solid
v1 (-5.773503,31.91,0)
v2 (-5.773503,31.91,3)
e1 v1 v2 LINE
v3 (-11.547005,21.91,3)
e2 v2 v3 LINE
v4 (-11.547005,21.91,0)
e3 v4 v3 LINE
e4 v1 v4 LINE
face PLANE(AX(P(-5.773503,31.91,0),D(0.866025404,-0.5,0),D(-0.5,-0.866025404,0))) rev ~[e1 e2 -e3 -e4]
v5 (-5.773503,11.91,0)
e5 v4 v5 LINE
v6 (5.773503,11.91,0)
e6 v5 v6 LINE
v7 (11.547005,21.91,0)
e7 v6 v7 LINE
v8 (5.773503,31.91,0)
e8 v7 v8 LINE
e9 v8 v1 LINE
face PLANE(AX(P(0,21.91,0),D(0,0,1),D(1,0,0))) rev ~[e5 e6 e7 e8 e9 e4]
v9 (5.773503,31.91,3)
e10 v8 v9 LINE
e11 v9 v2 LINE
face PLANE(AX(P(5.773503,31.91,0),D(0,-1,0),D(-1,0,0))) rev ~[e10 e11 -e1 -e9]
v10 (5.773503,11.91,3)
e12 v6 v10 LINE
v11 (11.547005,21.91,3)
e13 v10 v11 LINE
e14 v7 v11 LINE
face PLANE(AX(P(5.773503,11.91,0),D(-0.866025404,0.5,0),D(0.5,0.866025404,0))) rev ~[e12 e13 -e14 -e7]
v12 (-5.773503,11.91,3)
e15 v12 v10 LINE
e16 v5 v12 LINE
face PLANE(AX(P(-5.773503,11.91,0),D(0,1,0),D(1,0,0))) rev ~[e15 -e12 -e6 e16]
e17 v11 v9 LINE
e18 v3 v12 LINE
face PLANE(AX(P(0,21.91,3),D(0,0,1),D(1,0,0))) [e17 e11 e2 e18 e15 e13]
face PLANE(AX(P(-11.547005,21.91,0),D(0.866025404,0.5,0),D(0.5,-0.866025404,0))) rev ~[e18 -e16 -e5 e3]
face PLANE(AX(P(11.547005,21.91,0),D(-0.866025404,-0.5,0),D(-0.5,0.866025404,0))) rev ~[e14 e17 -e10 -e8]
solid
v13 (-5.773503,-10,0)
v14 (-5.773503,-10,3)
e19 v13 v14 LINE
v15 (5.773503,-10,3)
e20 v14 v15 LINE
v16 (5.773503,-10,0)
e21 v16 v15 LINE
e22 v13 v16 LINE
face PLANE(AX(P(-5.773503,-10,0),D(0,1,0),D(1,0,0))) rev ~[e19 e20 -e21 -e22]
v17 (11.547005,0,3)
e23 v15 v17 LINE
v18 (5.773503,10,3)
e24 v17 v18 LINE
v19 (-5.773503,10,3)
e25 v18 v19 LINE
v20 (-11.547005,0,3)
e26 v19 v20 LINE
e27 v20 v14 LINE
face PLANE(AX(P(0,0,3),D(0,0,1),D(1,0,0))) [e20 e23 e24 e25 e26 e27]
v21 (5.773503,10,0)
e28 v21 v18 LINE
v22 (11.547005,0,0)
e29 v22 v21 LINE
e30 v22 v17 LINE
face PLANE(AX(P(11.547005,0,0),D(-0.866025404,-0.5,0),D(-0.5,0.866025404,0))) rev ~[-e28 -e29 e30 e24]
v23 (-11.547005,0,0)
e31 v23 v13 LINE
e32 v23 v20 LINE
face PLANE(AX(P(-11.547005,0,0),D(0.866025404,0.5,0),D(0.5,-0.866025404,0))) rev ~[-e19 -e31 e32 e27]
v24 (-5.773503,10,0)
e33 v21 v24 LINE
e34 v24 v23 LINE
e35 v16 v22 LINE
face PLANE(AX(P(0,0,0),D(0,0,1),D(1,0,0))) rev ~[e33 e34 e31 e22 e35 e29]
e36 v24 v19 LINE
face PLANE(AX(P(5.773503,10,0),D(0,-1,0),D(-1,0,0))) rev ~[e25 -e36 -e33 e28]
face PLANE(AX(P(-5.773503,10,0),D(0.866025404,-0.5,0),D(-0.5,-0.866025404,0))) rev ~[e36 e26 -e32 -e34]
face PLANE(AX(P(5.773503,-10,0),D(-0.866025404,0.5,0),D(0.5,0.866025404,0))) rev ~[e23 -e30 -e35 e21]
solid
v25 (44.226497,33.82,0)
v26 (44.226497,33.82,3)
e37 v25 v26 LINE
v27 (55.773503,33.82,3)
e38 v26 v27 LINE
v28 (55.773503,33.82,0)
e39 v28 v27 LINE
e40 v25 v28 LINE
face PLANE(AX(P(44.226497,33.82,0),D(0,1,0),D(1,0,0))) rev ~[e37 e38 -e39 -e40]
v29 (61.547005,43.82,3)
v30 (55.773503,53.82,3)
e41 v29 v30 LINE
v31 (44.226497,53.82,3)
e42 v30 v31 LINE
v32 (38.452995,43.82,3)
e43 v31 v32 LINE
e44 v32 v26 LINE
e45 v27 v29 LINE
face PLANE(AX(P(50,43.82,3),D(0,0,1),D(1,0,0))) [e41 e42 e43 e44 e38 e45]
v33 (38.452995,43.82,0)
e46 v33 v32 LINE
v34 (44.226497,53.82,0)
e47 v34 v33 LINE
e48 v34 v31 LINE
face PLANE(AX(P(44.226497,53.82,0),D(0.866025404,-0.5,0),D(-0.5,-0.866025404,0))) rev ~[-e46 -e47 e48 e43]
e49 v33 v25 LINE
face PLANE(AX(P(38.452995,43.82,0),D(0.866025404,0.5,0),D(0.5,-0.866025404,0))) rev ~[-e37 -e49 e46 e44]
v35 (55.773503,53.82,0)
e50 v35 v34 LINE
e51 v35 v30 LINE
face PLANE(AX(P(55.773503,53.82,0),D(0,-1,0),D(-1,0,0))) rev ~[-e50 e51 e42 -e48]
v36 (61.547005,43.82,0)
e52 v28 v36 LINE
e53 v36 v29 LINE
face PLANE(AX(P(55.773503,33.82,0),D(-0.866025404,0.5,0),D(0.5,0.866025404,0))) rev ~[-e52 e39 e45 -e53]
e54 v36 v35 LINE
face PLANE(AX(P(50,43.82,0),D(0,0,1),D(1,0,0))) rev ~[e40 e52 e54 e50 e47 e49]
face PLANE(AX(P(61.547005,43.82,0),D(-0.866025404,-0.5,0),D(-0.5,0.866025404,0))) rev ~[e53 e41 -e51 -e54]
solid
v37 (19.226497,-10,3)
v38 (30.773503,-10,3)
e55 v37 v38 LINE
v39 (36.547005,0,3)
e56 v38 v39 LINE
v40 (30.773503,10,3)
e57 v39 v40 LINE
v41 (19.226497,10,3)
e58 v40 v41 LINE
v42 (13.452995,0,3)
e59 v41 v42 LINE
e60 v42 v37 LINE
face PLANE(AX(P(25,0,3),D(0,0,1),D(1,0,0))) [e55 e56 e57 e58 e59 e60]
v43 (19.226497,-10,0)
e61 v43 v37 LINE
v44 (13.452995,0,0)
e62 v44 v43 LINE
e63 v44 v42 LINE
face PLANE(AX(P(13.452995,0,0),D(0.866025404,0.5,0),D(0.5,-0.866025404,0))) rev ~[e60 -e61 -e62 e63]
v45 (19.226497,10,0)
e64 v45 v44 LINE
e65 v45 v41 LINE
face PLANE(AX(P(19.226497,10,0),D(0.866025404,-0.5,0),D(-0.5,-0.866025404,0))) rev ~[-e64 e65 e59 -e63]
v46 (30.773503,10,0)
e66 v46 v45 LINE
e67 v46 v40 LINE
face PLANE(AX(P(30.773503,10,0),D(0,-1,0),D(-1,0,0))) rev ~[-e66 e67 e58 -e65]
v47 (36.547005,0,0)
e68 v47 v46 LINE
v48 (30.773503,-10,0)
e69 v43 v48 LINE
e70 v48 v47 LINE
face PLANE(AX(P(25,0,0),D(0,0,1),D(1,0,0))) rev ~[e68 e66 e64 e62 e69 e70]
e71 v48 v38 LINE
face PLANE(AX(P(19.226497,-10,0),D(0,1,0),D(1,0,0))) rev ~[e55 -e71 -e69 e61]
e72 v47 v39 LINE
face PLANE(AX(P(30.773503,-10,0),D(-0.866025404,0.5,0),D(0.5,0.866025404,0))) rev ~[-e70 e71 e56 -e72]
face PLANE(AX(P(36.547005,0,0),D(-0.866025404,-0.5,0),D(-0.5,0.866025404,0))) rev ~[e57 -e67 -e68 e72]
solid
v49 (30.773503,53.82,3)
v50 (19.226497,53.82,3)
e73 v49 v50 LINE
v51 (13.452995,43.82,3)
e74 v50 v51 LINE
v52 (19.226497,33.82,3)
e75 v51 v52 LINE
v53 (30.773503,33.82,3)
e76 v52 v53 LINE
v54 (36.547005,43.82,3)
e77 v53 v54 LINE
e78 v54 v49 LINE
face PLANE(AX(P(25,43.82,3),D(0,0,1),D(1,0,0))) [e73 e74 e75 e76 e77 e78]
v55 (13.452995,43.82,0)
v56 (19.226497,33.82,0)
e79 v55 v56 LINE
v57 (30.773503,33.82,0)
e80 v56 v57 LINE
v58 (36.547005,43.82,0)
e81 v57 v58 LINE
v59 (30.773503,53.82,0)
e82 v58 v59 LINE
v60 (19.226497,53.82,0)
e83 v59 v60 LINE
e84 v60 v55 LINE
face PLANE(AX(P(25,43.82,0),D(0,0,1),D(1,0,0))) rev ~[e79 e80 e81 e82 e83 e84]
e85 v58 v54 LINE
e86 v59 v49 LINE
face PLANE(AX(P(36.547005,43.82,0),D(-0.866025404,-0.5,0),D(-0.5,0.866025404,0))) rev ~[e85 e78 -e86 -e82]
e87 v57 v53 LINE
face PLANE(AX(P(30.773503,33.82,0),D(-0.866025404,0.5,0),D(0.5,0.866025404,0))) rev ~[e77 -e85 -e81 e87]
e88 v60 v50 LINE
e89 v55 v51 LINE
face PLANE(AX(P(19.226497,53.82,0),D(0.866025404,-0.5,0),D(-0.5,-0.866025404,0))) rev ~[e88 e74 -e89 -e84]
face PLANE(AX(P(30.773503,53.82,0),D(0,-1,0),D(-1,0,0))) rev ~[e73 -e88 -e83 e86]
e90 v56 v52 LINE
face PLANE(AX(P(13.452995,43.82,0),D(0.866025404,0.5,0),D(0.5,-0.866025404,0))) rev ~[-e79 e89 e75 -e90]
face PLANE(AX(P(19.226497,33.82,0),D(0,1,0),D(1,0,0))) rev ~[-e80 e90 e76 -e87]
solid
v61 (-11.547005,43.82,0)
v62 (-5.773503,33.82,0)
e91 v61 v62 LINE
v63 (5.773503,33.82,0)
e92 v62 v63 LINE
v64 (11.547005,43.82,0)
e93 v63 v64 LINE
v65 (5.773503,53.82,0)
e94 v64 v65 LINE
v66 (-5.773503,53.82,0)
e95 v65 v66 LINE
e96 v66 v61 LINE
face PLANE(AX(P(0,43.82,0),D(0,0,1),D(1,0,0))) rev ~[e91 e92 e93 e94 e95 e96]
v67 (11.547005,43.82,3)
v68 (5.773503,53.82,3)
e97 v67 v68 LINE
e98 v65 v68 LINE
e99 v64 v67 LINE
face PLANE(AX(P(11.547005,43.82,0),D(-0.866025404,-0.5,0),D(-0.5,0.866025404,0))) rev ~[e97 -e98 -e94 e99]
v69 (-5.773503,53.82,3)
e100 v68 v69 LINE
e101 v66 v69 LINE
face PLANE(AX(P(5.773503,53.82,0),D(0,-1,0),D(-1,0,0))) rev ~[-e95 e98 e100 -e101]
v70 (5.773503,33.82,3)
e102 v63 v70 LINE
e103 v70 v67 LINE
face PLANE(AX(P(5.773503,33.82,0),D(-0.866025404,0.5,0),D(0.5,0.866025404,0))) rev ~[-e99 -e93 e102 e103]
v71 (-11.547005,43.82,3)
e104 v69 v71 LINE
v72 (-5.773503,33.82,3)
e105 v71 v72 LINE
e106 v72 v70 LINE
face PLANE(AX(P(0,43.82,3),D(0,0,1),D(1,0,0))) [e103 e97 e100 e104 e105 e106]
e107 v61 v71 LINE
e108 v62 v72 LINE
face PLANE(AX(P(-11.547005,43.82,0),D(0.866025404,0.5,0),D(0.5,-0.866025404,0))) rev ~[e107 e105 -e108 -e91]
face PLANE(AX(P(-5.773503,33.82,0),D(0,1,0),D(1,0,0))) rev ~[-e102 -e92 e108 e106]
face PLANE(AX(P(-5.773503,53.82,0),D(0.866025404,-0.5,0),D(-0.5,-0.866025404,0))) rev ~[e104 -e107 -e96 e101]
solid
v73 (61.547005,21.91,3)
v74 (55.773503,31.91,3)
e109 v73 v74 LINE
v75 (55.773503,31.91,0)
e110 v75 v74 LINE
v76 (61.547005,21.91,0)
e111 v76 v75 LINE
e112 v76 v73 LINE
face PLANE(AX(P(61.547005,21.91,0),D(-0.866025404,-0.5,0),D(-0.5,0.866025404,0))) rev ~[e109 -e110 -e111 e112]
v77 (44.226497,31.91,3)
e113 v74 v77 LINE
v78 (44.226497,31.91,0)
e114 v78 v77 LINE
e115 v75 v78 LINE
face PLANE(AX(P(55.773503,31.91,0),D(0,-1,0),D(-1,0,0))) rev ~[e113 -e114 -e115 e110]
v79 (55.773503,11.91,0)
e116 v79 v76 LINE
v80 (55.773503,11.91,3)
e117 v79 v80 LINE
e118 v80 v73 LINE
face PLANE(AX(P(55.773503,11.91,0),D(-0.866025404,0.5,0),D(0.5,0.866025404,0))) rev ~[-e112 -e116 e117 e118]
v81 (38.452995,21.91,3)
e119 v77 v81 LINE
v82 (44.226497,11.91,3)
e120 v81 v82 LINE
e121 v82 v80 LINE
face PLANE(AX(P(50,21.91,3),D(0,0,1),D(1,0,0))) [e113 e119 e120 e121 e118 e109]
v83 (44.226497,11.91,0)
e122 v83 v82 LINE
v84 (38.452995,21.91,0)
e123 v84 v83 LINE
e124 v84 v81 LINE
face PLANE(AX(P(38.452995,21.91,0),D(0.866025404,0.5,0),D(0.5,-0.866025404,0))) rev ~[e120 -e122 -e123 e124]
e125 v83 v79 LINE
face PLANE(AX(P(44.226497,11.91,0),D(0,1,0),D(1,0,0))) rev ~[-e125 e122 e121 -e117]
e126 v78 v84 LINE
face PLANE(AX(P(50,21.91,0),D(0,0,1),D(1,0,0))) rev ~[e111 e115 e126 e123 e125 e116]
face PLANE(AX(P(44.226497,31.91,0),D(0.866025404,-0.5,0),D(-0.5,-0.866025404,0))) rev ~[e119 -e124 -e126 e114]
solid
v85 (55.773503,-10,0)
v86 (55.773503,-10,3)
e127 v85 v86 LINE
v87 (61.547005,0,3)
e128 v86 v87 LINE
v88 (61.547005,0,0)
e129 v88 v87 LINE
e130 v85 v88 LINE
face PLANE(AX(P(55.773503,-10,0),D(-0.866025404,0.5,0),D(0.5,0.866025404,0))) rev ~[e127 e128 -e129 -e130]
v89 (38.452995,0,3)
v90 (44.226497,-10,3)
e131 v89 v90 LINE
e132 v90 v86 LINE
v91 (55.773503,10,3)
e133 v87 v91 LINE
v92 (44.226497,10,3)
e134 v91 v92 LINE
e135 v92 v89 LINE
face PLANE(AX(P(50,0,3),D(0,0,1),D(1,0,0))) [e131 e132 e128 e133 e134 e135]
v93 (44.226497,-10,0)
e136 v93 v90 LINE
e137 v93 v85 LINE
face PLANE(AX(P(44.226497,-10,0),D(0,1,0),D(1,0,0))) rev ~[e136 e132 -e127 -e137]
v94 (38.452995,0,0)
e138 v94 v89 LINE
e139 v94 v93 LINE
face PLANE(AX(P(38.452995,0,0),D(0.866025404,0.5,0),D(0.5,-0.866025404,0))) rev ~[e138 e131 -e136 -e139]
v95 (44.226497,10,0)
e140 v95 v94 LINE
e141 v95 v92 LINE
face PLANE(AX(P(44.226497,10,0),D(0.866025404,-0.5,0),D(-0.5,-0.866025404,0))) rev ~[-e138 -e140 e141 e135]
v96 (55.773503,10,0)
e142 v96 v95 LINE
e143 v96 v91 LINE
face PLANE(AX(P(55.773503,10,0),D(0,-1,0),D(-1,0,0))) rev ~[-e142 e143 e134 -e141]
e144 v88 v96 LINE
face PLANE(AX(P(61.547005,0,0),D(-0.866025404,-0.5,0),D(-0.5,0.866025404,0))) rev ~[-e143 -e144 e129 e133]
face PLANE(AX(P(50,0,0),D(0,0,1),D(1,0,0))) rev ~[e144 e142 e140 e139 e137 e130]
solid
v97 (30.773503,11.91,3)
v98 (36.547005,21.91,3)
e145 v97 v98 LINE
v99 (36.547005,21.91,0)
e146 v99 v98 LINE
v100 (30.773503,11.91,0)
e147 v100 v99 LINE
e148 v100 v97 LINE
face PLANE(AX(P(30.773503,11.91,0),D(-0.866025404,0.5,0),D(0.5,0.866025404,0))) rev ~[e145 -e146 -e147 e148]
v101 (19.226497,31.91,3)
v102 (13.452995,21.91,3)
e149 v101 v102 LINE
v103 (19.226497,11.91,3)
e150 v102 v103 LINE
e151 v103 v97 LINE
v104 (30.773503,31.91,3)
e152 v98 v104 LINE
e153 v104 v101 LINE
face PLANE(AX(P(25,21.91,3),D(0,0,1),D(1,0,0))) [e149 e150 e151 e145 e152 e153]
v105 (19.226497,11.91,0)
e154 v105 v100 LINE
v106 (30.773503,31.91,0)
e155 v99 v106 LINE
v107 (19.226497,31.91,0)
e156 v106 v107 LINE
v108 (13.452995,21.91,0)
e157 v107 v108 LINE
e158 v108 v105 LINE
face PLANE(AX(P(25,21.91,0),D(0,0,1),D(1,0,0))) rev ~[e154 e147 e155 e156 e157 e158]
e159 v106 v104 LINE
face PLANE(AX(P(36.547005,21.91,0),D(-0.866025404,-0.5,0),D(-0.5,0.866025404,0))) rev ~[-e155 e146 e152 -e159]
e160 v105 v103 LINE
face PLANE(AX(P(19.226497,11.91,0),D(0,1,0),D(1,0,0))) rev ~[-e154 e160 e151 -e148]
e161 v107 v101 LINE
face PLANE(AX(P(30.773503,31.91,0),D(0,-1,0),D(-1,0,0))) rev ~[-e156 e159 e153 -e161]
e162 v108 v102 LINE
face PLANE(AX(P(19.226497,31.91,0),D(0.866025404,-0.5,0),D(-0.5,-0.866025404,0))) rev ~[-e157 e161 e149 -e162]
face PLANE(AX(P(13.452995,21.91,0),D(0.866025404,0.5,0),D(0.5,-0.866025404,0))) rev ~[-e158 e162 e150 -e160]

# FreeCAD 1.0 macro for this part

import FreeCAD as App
import Part
import Sketcher
from FreeCAD import Vector
Q = App.Units.Quantity


def add_polygon(sketch, points):
    """Adds a closed chain of lines whose ends are joined by coincident constraints."""
    first, n = sketch.GeometryCount, len(points)
    for a, b in zip(points, points[1:] + points[:1]):
        sketch.addGeometry(Part.LineSegment(App.Vector(*a, 0), App.Vector(*b, 0)), False)
    for i in range(n):
        sketch.addConstraint(Sketcher.Constraint("Coincident", first + i, 2, first + (i + 1) % n, 1))

doc = App.newDocument("Part")
body = doc.addObject("PartDesign::Body", "Body")

sketch1 = body.newObject("Sketcher::SketchObject", "Sketch")
sketch1.AttachmentSupport = (doc.getObject("XY_Plane"), [""])
sketch1.MapMode = "FlatFace"
add_polygon(sketch1, [(30.773503, -10), (36.547005, 0), (30.773503, 10), (19.226497, 10), (13.452995, 0), (19.226497, -10)])
sketch1.addConstraint([
    Sketcher.Constraint("Horizontal", 2),
    Sketcher.Constraint("Horizontal", 5),
    Sketcher.Constraint("Symmetric", 2, 2, 4, 2, -1),
    Sketcher.Constraint("PointOnObject", 0, 2, -1),
    Sketcher.Constraint("PointOnObject", 3, 2, -1),
    Sketcher.Constraint("Parallel", 0, 3),
    Sketcher.Constraint("Parallel", 1, 4),
    Sketcher.Constraint("Angle", 0, Q("60 deg")),
    Sketcher.Constraint("DistanceY", -1, 1, 1, 2, 10.0),
    Sketcher.Constraint("DistanceX", 2, 2, 2, 1, 11.547005),
    Sketcher.Constraint("DistanceX", -1, 1, 0, 2, 36.547005),
])
pad1 = body.newObject("PartDesign::Pad", "Pad")
pad1.Profile = sketch1
pad1.Length = 3
body2 = doc.addObject("PartDesign::Body", "Body001")

sketch2 = body2.newObject("Sketcher::SketchObject", "Sketch001")
sketch2.AttachmentSupport = (doc.getObject("XY_Plane001"), [""])
sketch2.MapMode = "FlatFace"
add_polygon(sketch2, [(5.773503, -10), (11.547005, 0), (5.773503, 10), (-5.773503, 10), (-11.547005, 0), (-5.773503, -10)])
sketch2.addConstraint([
    Sketcher.Constraint("Horizontal", 2),
    Sketcher.Constraint("Horizontal", 5),
    Sketcher.Constraint("Symmetric", 0, 2, 3, 2, -1, 1),
    Sketcher.Constraint("Symmetric", 1, 2, 4, 2, -1, 1),
    Sketcher.Constraint("PointOnObject", 0, 2, -1),
    Sketcher.Constraint("Parallel", 0, 3),
    Sketcher.Constraint("Vertical", 2, 2, 4, 2),
    Sketcher.Constraint("Angle", 0, Q("60 deg")),
    Sketcher.Constraint("DistanceY", -1, 1, 1, 2, 10.0),
    Sketcher.Constraint("DistanceX", 2, 2, 2, 1, 11.547005),
])
pad2 = body2.newObject("PartDesign::Pad", "Pad001")
pad2.Profile = sketch2
pad2.Length = 3
body3 = doc.addObject("PartDesign::Body", "Body002")

sketch3 = body3.newObject("Sketcher::SketchObject", "Sketch002")
sketch3.AttachmentSupport = (doc.getObject("XY_Plane002"), [""])
sketch3.MapMode = "FlatFace"
add_polygon(sketch3, [(55.773503, -10), (61.547005, 0), (55.773503, 10), (44.226497, 10), (38.452995, 0), (44.226497, -10)])
sketch3.addConstraint([
    Sketcher.Constraint("Horizontal", 2),
    Sketcher.Constraint("Horizontal", 5),
    Sketcher.Constraint("Symmetric", 2, 2, 4, 2, -1),
    Sketcher.Constraint("PointOnObject", 0, 2, -1),
    Sketcher.Constraint("PointOnObject", 3, 2, -1),
    Sketcher.Constraint("Parallel", 0, 3),
    Sketcher.Constraint("Parallel", 1, 4),
    Sketcher.Constraint("Angle", 0, Q("60 deg")),
    Sketcher.Constraint("DistanceY", -1, 1, 1, 2, 10.0),
    Sketcher.Constraint("DistanceX", 2, 2, 2, 1, 11.547005),
    Sketcher.Constraint("DistanceX", -1, 1, 0, 2, 61.547005),
])
pad3 = body3.newObject("PartDesign::Pad", "Pad002")
pad3.Profile = sketch3
pad3.Length = 3
body4 = doc.addObject("PartDesign::Body", "Body003")

sketch4 = body4.newObject("Sketcher::SketchObject", "Sketch003")
sketch4.AttachmentSupport = (doc.getObject("XY_Plane003"), [""])
sketch4.MapMode = "FlatFace"
add_polygon(sketch4, [(30.773503, 11.91), (36.547005, 21.91), (30.773503, 31.91), (19.226497, 31.91), (13.452995, 21.91), (19.226497, 11.91)])
sketch4.addConstraint([
    Sketcher.Constraint("Horizontal", 2),
    Sketcher.Constraint("Horizontal", 5),
    Sketcher.Constraint("Parallel", 0, 3),
    Sketcher.Constraint("Parallel", 1, 4),
    Sketcher.Constraint("Horizontal", 0, 2, 3, 2),
    Sketcher.Constraint("Vertical", 2, 2, 4, 2),
    Sketcher.Constraint("Vertical", 1, 2, 5, 2),
    Sketcher.Constraint("Angle", 0, Q("60 deg")),
    Sketcher.Constraint("DistanceY", 0, 2, 1, 2, 10.0),
    Sketcher.Constraint("DistanceY", -1, 1, 0, 2, 21.91),
    Sketcher.Constraint("DistanceX", 2, 2, 2, 1, 11.547005),
    Sketcher.Constraint("DistanceX", -1, 1, 0, 2, 36.547005),
])
pad4 = body4.newObject("PartDesign::Pad", "Pad003")
pad4.Profile = sketch4
pad4.Length = 3
body5 = doc.addObject("PartDesign::Body", "Body004")

sketch5 = body5.newObject("Sketcher::SketchObject", "Sketch004")
sketch5.AttachmentSupport = (doc.getObject("XY_Plane004"), [""])
sketch5.MapMode = "FlatFace"
add_polygon(sketch5, [(5.773503, 11.91), (11.547005, 21.91), (5.773503, 31.91), (-5.773503, 31.91), (-11.547005, 21.91), (-5.773503, 11.91)])
sketch5.addConstraint([
    Sketcher.Constraint("Horizontal", 2),
    Sketcher.Constraint("Horizontal", 5),
    Sketcher.Constraint("Symmetric", 0, 2, 3, 2, -2),
    Sketcher.Constraint("Parallel", 0, 3),
    Sketcher.Constraint("Parallel", 1, 4),
    Sketcher.Constraint("Vertical", 2, 2, 4, 2),
    Sketcher.Constraint("Vertical", 1, 2, 5, 2),
    Sketcher.Constraint("Angle", 0, Q("60 deg")),
    Sketcher.Constraint("DistanceY", 0, 2, 1, 2, 10.0),
    Sketcher.Constraint("DistanceY", -1, 1, 0, 2, 21.91),
    Sketcher.Constraint("DistanceX", 2, 2, 2, 1, 11.547005),
])
pad5 = body5.newObject("PartDesign::Pad", "Pad004")
pad5.Profile = sketch5
pad5.Length = 3
body6 = doc.addObject("PartDesign::Body", "Body005")

sketch6 = body6.newObject("Sketcher::SketchObject", "Sketch005")
sketch6.AttachmentSupport = (doc.getObject("XY_Plane005"), [""])
sketch6.MapMode = "FlatFace"
add_polygon(sketch6, [(55.773503, 11.91), (61.547005, 21.91), (55.773503, 31.91), (44.226497, 31.91), (38.452995, 21.91), (44.226497, 11.91)])
sketch6.addConstraint([
    Sketcher.Constraint("Horizontal", 2),
    Sketcher.Constraint("Horizontal", 5),
    Sketcher.Constraint("Parallel", 0, 3),
    Sketcher.Constraint("Parallel", 1, 4),
    Sketcher.Constraint("Horizontal", 0, 2, 3, 2),
    Sketcher.Constraint("Vertical", 2, 2, 4, 2),
    Sketcher.Constraint("Vertical", 1, 2, 5, 2),
    Sketcher.Constraint("Angle", 0, Q("60 deg")),
    Sketcher.Constraint("DistanceY", 0, 2, 1, 2, 10.0),
    Sketcher.Constraint("DistanceY", -1, 1, 0, 2, 21.91),
    Sketcher.Constraint("DistanceX", 2, 2, 2, 1, 11.547005),
    Sketcher.Constraint("DistanceX", -1, 1, 0, 2, 61.547005),
])
pad6 = body6.newObject("PartDesign::Pad", "Pad005")
pad6.Profile = sketch6
pad6.Length = 3
body7 = doc.addObject("PartDesign::Body", "Body006")

sketch7 = body7.newObject("Sketcher::SketchObject", "Sketch006")
sketch7.AttachmentSupport = (doc.getObject("XY_Plane006"), [""])
sketch7.MapMode = "FlatFace"
add_polygon(sketch7, [(30.773503, 33.82), (36.547005, 43.82), (30.773503, 53.82), (19.226497, 53.82), (13.452995, 43.82), (19.226497, 33.82)])
sketch7.addConstraint([
    Sketcher.Constraint("Horizontal", 2),
    Sketcher.Constraint("Horizontal", 5),
    Sketcher.Constraint("Parallel", 0, 3),
    Sketcher.Constraint("Parallel", 1, 4),
    Sketcher.Constraint("Horizontal", 0, 2, 3, 2),
    Sketcher.Constraint("Vertical", 2, 2, 4, 2),
    Sketcher.Constraint("Vertical", 1, 2, 5, 2),
    Sketcher.Constraint("Angle", 0, Q("60 deg")),
    Sketcher.Constraint("DistanceY", 0, 2, 1, 2, 10.0),
    Sketcher.Constraint("DistanceY", -1, 1, 0, 2, 43.82),
    Sketcher.Constraint("DistanceX", 2, 2, 2, 1, 11.547005),
    Sketcher.Constraint("DistanceX", -1, 1, 0, 2, 36.547005),
])
pad7 = body7.newObject("PartDesign::Pad", "Pad006")
pad7.Profile = sketch7
pad7.Length = 3
body8 = doc.addObject("PartDesign::Body", "Body007")

sketch8 = body8.newObject("Sketcher::SketchObject", "Sketch007")
sketch8.AttachmentSupport = (doc.getObject("XY_Plane007"), [""])
sketch8.MapMode = "FlatFace"
add_polygon(sketch8, [(5.773503, 33.82), (11.547005, 43.82), (5.773503, 53.82), (-5.773503, 53.82), (-11.547005, 43.82), (-5.773503, 33.82)])
sketch8.addConstraint([
    Sketcher.Constraint("Horizontal", 2),
    Sketcher.Constraint("Horizontal", 5),
    Sketcher.Constraint("Symmetric", 0, 2, 3, 2, -2),
    Sketcher.Constraint("Parallel", 0, 3),
    Sketcher.Constraint("Parallel", 1, 4),
    Sketcher.Constraint("Vertical", 2, 2, 4, 2),
    Sketcher.Constraint("Vertical", 1, 2, 5, 2),
    Sketcher.Constraint("Angle", 0, Q("60 deg")),
    Sketcher.Constraint("DistanceY", 0, 2, 1, 2, 10.0),
    Sketcher.Constraint("DistanceY", -1, 1, 0, 2, 43.82),
    Sketcher.Constraint("DistanceX", 2, 2, 2, 1, 11.547005),
])
pad8 = body8.newObject("PartDesign::Pad", "Pad007")
pad8.Profile = sketch8
pad8.Length = 3
body9 = doc.addObject("PartDesign::Body", "Body008")

sketch9 = body9.newObject("Sketcher::SketchObject", "Sketch008")
sketch9.AttachmentSupport = (doc.getObject("XY_Plane008"), [""])
sketch9.MapMode = "FlatFace"
add_polygon(sketch9, [(55.773503, 33.82), (61.547005, 43.82), (55.773503, 53.82), (44.226497, 53.82), (38.452995, 43.82), (44.226497, 33.82)])
sketch9.addConstraint([
    Sketcher.Constraint("Horizontal", 2),
    Sketcher.Constraint("Horizontal", 5),
    Sketcher.Constraint("Parallel", 0, 3),
    Sketcher.Constraint("Parallel", 1, 4),
    Sketcher.Constraint("Horizontal", 0, 2, 3, 2),
    Sketcher.Constraint("Vertical", 2, 2, 4, 2),
    Sketcher.Constraint("Vertical", 1, 2, 5, 2),
    Sketcher.Constraint("Angle", 0, Q("60 deg")),
    Sketcher.Constraint("DistanceY", 0, 2, 1, 2, 10.0),
    Sketcher.Constraint("DistanceY", -1, 1, 0, 2, 43.82),
    Sketcher.Constraint("DistanceX", 2, 2, 2, 1, 11.547005),
    Sketcher.Constraint("DistanceX", -1, 1, 0, 2, 61.547005),
])
pad9 = body9.newObject("PartDesign::Pad", "Pad008")
pad9.Profile = sketch9
pad9.Length = 3

doc.recompute()
